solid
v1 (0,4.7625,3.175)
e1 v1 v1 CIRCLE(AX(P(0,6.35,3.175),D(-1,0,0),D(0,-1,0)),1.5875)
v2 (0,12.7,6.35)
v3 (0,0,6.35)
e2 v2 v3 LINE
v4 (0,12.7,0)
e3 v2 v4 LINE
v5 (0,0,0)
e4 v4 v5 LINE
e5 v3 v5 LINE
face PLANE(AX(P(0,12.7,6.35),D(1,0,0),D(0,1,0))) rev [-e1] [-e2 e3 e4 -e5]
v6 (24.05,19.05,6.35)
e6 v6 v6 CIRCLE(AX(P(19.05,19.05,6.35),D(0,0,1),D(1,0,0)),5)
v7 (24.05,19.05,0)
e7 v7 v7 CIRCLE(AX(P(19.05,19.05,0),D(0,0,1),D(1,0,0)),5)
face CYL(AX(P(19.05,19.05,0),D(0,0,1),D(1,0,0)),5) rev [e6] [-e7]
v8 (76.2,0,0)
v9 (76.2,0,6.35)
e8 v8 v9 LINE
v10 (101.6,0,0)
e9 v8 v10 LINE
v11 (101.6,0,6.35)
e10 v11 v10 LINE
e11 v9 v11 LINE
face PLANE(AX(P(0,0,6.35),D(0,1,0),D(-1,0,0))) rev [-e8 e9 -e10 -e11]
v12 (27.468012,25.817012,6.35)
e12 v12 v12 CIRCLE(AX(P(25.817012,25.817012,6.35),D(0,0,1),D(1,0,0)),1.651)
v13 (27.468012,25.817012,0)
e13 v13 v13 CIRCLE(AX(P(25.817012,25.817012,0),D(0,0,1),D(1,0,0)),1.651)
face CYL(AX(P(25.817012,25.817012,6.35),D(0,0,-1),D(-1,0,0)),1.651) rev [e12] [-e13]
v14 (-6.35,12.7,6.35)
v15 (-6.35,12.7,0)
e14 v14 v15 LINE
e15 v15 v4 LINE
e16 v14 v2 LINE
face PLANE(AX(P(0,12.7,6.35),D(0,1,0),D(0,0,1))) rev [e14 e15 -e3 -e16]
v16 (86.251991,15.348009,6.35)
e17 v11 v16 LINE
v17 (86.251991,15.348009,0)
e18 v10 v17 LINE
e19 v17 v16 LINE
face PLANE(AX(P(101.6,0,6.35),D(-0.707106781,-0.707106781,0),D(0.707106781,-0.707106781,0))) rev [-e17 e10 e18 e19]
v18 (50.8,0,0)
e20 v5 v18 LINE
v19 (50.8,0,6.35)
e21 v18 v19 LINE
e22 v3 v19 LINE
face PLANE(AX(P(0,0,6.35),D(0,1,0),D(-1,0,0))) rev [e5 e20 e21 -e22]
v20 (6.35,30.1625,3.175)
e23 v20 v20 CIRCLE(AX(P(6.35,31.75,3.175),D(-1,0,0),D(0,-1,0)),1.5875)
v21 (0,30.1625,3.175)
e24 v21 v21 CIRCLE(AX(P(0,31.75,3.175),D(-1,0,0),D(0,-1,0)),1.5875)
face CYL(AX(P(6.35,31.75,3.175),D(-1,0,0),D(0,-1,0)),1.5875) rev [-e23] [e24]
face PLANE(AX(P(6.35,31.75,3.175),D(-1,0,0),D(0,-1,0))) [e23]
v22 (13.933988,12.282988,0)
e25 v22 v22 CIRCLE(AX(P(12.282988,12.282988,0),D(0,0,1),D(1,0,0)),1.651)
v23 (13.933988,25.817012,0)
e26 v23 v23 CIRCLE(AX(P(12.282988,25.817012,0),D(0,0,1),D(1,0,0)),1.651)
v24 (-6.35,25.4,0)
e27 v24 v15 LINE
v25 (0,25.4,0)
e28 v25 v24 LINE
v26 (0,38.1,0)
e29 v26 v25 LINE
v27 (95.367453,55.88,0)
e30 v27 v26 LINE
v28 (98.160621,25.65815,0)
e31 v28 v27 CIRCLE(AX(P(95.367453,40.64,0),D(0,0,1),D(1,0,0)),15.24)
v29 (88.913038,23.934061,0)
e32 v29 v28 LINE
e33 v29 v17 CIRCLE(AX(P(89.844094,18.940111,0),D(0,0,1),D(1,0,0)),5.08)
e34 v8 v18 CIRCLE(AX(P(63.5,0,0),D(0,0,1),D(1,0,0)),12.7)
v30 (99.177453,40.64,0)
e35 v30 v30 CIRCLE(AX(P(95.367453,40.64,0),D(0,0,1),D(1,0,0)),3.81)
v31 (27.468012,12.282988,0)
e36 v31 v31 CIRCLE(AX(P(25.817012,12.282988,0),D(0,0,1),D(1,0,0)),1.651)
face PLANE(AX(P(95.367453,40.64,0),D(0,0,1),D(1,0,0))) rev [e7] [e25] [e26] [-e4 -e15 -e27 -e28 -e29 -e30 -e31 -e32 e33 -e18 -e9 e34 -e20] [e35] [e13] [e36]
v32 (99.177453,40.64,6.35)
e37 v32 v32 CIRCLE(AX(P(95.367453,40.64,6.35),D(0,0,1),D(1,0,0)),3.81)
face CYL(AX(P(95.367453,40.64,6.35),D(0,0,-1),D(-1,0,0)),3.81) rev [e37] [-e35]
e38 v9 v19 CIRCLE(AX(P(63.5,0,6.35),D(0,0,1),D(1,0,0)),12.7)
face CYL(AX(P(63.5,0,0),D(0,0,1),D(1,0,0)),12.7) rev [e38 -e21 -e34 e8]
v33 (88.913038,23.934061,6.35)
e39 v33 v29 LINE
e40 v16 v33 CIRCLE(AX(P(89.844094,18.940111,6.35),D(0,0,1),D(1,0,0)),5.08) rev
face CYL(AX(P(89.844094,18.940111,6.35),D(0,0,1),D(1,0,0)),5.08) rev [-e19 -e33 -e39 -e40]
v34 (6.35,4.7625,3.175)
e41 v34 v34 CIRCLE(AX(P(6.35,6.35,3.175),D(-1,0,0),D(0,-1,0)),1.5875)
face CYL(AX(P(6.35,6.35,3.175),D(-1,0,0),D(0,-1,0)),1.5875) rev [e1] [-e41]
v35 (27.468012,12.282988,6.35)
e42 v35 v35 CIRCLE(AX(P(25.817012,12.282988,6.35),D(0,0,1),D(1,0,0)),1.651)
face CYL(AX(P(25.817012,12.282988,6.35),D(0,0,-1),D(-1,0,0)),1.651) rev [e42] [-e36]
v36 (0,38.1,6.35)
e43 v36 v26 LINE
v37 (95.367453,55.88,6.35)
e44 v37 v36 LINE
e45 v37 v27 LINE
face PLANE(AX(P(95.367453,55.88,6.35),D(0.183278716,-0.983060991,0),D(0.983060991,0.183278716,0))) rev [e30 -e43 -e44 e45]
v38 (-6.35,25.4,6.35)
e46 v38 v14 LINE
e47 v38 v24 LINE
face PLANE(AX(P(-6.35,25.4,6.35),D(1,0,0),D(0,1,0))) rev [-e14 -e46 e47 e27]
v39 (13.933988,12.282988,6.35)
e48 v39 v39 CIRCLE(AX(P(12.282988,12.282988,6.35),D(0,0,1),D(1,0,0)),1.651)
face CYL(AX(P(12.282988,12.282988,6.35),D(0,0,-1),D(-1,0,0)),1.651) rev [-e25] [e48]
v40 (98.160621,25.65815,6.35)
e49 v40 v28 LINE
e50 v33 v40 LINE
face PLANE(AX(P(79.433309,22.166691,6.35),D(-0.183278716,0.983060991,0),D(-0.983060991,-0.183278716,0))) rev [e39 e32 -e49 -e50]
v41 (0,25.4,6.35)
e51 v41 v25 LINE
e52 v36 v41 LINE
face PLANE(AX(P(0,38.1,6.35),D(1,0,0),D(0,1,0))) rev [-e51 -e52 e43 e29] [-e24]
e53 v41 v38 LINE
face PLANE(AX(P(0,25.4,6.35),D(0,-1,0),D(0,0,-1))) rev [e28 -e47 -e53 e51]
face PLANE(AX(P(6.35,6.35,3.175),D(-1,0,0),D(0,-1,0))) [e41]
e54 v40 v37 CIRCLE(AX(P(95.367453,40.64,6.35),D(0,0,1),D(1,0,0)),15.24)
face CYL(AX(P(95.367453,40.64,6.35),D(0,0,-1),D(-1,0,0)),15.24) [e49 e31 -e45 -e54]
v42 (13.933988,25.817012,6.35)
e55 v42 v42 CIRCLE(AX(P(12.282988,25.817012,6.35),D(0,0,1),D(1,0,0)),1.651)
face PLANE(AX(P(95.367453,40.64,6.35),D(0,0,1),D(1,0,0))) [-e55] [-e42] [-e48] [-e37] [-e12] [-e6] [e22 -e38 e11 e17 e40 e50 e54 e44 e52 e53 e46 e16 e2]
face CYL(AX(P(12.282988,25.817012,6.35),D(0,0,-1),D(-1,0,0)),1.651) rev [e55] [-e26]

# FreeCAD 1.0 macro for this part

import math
import FreeCAD as App
import Part
import Sketcher

V = App.Vector
Q = App.Units.Quantity


def edges_at(feature, points):
    """Names of the edges that pass closest to the given points."""
    edges = feature.Shape.Edges
    near = lambda p: min(range(len(edges)), key=lambda i: edges[i].distToShape(Part.Vertex(*p))[0])
    return sorted({f"Edge{near(p) + 1}" for p in points})

doc = App.newDocument("Part")
params = doc.addObject("Spreadsheet::Sheet", "Params")
for row, (alias, value) in enumerate([
    ("sketch1_diameter", "0.3 in"),
    ("sketch1_radius", "0.6 in"),
    ("sketch1_diameter2", "0.13 in"),
    ("sketch1_width", "4 in"),
    ("sketch1_height", "0.5 in"),
    ("pad1_length", "0.25 in"),
    ("fillet_radius", "0.2 in"),
    ("sketch2_diameter", "0.125 in"),
    ("pocket1_length", "0.25 in"),
    ("sketch3_radius", "0.5 in"),
    ("pocket2_length", "0.25 in"),
], start=1):
    params.set(f"A{row}", alias)
    params.set(f"B{row}", "=" + value)
    params.setAlias(f"B{row}", alias)

body = doc.addObject("PartDesign::Body", "Body")

# Sketch on XY plane
sketch1 = body.newObject("Sketcher::SketchObject", "Sketch")
sketch1.AttachmentSupport = (doc.getObject("XY_Plane"), [""])
sketch1.MapMode = "FlatFace"
sketch1.addGeometry(Part.LineSegment(V(0, 0, 0), V(101.6, 0, 0)), False)
sketch1.addGeometry(Part.LineSegment(V(101.6, 0, 0), V(79.4, 22.2, 0)), False)
sketch1.addGeometry(Part.LineSegment(V(79.4, 22.2, 0), V(98.2, 25.7, 0)), False)
sketch1.addGeometry(Part.ArcOfCircle(Part.Circle(V(95.4, 40.6, 0), V(0, 0, 1), 15.2), math.radians(-79), math.radians(90)), False)
sketch1.addGeometry(Part.LineSegment(V(95.4, 55.9, 0), V(0, 38.1, 0)), False)
sketch1.addGeometry(Part.LineSegment(V(0, 38.1, 0), V(0, 25.4, 0)), False)
sketch1.addGeometry(Part.LineSegment(V(0, 25.4, 0), V(-6.3, 25.4, 0)), False)
sketch1.addGeometry(Part.LineSegment(V(-6.3, 25.4, 0), V(-6.3, 12.7, 0)), False)
sketch1.addGeometry(Part.LineSegment(V(-6.3, 12.7, 0), V(0, 12.7, 0)), False)
sketch1.addGeometry(Part.LineSegment(V(0, 12.7, 0), V(0, 0, 0)), False)
sketch1.addGeometry(Part.Circle(V(12.3, 12.3, 0), V(0, 0, 1), 1.7), False)
sketch1.addGeometry(Part.Circle(V(25.8, 12.3, 0), V(0, 0, 1), 1.7), False)
sketch1.addGeometry(Part.Circle(V(12.3, 25.8, 0), V(0, 0, 1), 1.7), False)
sketch1.addGeometry(Part.Circle(V(25.8, 25.8, 0), V(0, 0, 1), 1.7), False)
sketch1.addGeometry(Part.Circle(V(95.4, 40.6, 0), V(0, 0, 1), 3.8), False)
sketch1.addConstraint(Sketcher.Constraint("Coincident", 0, 2, 1, 1))
sketch1.addConstraint(Sketcher.Constraint("Coincident", 1, 2, 2, 1))
sketch1.addConstraint(Sketcher.Constraint("Tangent", 2, 2, 3, 1))
sketch1.addConstraint(Sketcher.Constraint("Coincident", 3, 2, 4, 1))
sketch1.addConstraint(Sketcher.Constraint("Coincident", 4, 2, 5, 1))
sketch1.addConstraint(Sketcher.Constraint("Coincident", 5, 2, 6, 1))
sketch1.addConstraint(Sketcher.Constraint("Coincident", 6, 2, 7, 1))
sketch1.addConstraint(Sketcher.Constraint("Coincident", 7, 2, 8, 1))
sketch1.addConstraint(Sketcher.Constraint("Coincident", 8, 2, 9, 1))
sketch1.addConstraint(Sketcher.Constraint("Coincident", 9, 2, 0, 1))
sketch1.addConstraint(Sketcher.Constraint("Horizontal", 0))
sketch1.addConstraint(Sketcher.Constraint("Vertical", 5))
sketch1.addConstraint(Sketcher.Constraint("Horizontal", 6))
sketch1.addConstraint(Sketcher.Constraint("Vertical", 7))
sketch1.addConstraint(Sketcher.Constraint("Horizontal", 8))
sketch1.addConstraint(Sketcher.Constraint("Vertical", 9))
sketch1.addConstraint(Sketcher.Constraint("Coincident", 9, 2, -1, 1))
sketch1.addConstraint(Sketcher.Constraint("Coincident", 14, 3, 3, 3))
sketch1.addConstraint(Sketcher.Constraint("Equal", 10, 11))
sketch1.addConstraint(Sketcher.Constraint("Equal", 11, 12))
sketch1.addConstraint(Sketcher.Constraint("Equal", 12, 13))
sketch1.addConstraint(Sketcher.Constraint("PointOnObject", 4, 2, -2))
sketch1.addConstraint(Sketcher.Constraint("Parallel", 2, 4))
sketch1.addConstraint(Sketcher.Constraint("Horizontal", 10, 3, 11, 3))
sketch1.addConstraint(Sketcher.Constraint("Horizontal", 12, 3, 13, 3))
sketch1.addConstraint(Sketcher.Constraint("Vertical", 10, 3, 12, 3))
sketch1.addConstraint(Sketcher.Constraint("Vertical", 11, 3, 13, 3))
sketch1.addConstraint(Sketcher.Constraint("Vertical", 14, 3, 3, 2))
sketch1.addConstraint(Sketcher.Constraint("Equal", 5, 7))
sketch1.addConstraint(Sketcher.Constraint("Equal", 7, 9))
sketch1.addConstraint(Sketcher.Constraint("Diameter", 14, Q("0.3 in")))
sketch1.addConstraint(Sketcher.Constraint("Radius", 3, Q("0.6 in")))
sketch1.addConstraint(Sketcher.Constraint("Diameter", 10, Q("0.13 in")))
sketch1.addConstraint(Sketcher.Constraint("DistanceX", 0, 1, 0, 2, Q("4 in")))
sketch1.addConstraint(Sketcher.Constraint("DistanceY", 5, 2, 5, 1, Q("0.5 in")))
sketch1.addConstraint(Sketcher.Constraint("Angle", 1, Q("135 deg")))
sketch1.addConstraint(Sketcher.Constraint("DistanceX", 6, 2, 6, 1, Q("0.25 in")))
sketch1.addConstraint(Sketcher.Constraint("DistanceY", -1, 1, 3, 3, Q("1.6 in")))
sketch1.addConstraint(Sketcher.Constraint("Distance", 2, Q("0.75 in")))
sketch1.addConstraint(Sketcher.Constraint("DistanceX", -1, 1, 10, 3, Q("12.282988 mm")))
sketch1.addConstraint(Sketcher.Constraint("DistanceY", -1, 1, 10, 3, Q("12.282988 mm")))
sketch1.addConstraint(Sketcher.Constraint("DistanceX", -1, 1, 11, 3, Q("25.817012 mm")))
sketch1.addConstraint(Sketcher.Constraint("DistanceY", -1, 1, 12, 3, Q("25.817012 mm")))
sketch1.setExpression("Constraints[30]", "Params.sketch1_diameter")
sketch1.setExpression("Constraints[31]", "Params.sketch1_radius")
sketch1.setExpression("Constraints[32]", "Params.sketch1_diameter2")
sketch1.setExpression("Constraints[33]", "Params.sketch1_width")
sketch1.setExpression("Constraints[34]", "Params.sketch1_height")
pad1 = body.newObject("PartDesign::Pad", "Pad")
pad1.Profile = sketch1
pad1.setExpression("Length", "Params.pad1_length")
doc.recompute()

fillet = body.newObject("PartDesign::Fillet", "Fillet")
fillet.Base = (pad1, edges_at(pad1, [(79.433, 22.167, 3.175)]))
fillet.setExpression("Radius", "Params.fillet_radius")

# Sketch on YZ plane
sketch2 = body.newObject("Sketcher::SketchObject", "Sketch001")
sketch2.AttachmentSupport = (doc.getObject("YZ_Plane"), [""])
sketch2.MapMode = "FlatFace"
sketch2.addGeometry(Part.Circle(V(31.8, 3.2, 0), V(0, 0, 1), 1.6), False)
sketch2.addGeometry(Part.Circle(V(6.3, 3.2, 0), V(0, 0, 1), 1.6), False)
sketch2.addConstraint(Sketcher.Constraint("Equal", 0, 1))
sketch2.addConstraint(Sketcher.Constraint("Horizontal", 0, 3, 1, 3))
sketch2.addConstraint(Sketcher.Constraint("Diameter", 0, Q("0.125 in")))
sketch2.addConstraint(Sketcher.Constraint("DistanceX", 1, 3, 0, 3, Q("1 in")))
sketch2.addConstraint(Sketcher.Constraint("DistanceX", -1, 1, 0, 3, Q("1.25 in")))
sketch2.addConstraint(Sketcher.Constraint("DistanceY", -1, 1, 0, 3, Q("0.125 in")))
sketch2.setExpression("Constraints[2]", "Params.sketch2_diameter")
pocket1 = body.newObject("PartDesign::Pocket", "Pocket")
pocket1.Profile = sketch2
pocket1.setExpression("Length", "Params.pocket1_length")
pocket1.Reversed = True

# Sketch on XY plane
sketch3 = body.newObject("Sketcher::SketchObject", "Sketch002")
sketch3.AttachmentSupport = (doc.getObject("XY_Plane"), [""])
sketch3.MapMode = "FlatFace"
sketch3.AttachmentOffset = App.Placement(V(0, 0, 0.25 * 25.4), App.Rotation())
sketch3.addGeometry(Part.LineSegment(V(51, 0, 0), V(76, 0, 0)), False)
sketch3.addGeometry(Part.ArcOfCircle(Part.Circle(V(64, 0, 0), V(0, 0, 1), 13), math.radians(0), math.radians(180)), False)
sketch3.addConstraint(Sketcher.Constraint("Coincident", 0, 1, 1, 2))
sketch3.addConstraint(Sketcher.Constraint("Coincident", 1, 1, 0, 2))
sketch3.addConstraint(Sketcher.Constraint("Horizontal", 0))
sketch3.addConstraint(Sketcher.Constraint("PointOnObject", 1, 3, -1))
sketch3.addConstraint(Sketcher.Constraint("PointOnObject", 0, 1, -1))
sketch3.addConstraint(Sketcher.Constraint("Radius", 1, Q("0.5 in")))
sketch3.addConstraint(Sketcher.Constraint("DistanceX", -1, 1, 0, 1, Q("2 in")))
sketch3.setExpression("Constraints[5]", "Params.sketch3_radius")
pocket2 = body.newObject("PartDesign::Pocket", "Pocket001")
pocket2.Profile = sketch3
pocket2.setExpression("Length", "Params.pocket2_length")

# Sketch on XY plane
sketch4 = body.newObject("Sketcher::SketchObject", "Sketch003")
sketch4.AttachmentSupport = (doc.getObject("XY_Plane"), [""])
sketch4.MapMode = "FlatFace"
sketch4.AttachmentOffset = App.Placement(V(0, 0, 0.25 * 25.4), App.Rotation())
sketch4.addGeometry(Part.Circle(V(19, 19, 0), V(0, 0, 1), 5), False)
sketch4.addConstraint(Sketcher.Constraint("Diameter", 0, Q("10 mm")))
sketch4.addConstraint(Sketcher.Constraint("DistanceX", -1, 1, 0, 3, Q("0.75 in")))
sketch4.addConstraint(Sketcher.Constraint("DistanceY", -1, 1, 0, 3, Q("0.75 in")))
pocket3 = body.newObject("PartDesign::Pocket", "Pocket002")
pocket3.Profile = sketch4
pocket3.Type = "ThroughAll"

doc.recompute()
